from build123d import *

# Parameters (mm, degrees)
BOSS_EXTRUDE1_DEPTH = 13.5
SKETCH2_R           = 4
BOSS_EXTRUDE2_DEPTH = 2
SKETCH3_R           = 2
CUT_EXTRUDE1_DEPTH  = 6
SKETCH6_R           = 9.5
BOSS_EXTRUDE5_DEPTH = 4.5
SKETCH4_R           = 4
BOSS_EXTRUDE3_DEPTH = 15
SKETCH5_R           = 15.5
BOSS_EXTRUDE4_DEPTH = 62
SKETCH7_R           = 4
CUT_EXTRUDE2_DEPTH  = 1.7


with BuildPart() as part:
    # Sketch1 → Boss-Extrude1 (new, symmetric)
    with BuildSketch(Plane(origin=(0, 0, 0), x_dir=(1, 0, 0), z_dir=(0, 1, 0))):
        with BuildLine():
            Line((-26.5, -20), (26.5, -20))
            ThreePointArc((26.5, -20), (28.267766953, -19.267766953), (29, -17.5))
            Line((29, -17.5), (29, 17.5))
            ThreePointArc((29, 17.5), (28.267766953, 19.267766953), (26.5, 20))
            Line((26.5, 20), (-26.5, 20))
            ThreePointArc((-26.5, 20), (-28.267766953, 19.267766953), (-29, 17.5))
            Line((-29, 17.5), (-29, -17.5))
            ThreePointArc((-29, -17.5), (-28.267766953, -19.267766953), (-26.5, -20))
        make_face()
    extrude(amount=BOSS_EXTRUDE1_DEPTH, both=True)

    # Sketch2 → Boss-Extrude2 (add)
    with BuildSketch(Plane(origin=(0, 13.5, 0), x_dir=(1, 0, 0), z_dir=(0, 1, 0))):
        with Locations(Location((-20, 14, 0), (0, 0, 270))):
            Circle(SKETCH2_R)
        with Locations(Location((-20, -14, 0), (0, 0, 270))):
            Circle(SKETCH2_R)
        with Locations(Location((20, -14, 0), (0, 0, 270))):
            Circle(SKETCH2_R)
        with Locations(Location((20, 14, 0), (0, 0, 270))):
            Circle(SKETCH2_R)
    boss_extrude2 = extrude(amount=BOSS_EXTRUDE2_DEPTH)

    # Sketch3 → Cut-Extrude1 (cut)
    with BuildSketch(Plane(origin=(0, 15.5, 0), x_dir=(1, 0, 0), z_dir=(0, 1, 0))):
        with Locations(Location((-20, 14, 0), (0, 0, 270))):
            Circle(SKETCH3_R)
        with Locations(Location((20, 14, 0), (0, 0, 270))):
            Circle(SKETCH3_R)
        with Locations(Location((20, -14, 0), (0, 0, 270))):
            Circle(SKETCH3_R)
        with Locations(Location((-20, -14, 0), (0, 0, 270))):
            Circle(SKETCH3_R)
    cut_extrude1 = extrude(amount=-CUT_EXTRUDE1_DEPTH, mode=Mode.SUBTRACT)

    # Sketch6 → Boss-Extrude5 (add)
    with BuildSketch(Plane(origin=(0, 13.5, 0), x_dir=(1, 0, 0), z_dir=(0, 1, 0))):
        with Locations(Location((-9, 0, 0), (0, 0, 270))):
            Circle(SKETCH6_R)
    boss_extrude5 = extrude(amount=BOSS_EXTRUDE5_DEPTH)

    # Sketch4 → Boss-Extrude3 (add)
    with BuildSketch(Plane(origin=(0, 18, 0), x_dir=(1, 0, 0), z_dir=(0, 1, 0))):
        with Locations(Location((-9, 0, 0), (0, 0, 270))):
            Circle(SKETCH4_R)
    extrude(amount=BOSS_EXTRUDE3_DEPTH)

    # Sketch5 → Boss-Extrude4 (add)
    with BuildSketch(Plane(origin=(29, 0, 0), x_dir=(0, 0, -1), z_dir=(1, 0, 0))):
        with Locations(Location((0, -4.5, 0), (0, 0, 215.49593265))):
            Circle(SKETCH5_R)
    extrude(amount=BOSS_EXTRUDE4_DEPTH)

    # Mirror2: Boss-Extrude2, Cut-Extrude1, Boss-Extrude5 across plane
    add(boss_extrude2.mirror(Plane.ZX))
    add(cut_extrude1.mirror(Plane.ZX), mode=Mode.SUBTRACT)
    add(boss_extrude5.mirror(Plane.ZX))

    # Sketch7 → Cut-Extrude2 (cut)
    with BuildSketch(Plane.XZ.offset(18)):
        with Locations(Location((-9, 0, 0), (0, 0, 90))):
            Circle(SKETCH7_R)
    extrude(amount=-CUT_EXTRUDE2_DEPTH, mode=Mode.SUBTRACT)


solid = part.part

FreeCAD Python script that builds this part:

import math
import FreeCAD as App
import Part
import Sketcher

V = App.Vector
Q = App.Units.Quantity

doc = App.newDocument("Part")
body = doc.addObject("PartDesign::Body", "Body")

# Sketch on XZ plane
sketch1 = body.newObject("Sketcher::SketchObject", "Sketch")
sketch1.AttachmentSupport = (doc.getObject("XZ_Plane"), [""])
sketch1.MapMode = "FlatFace"
sketch1.addGeometry([
    Part.LineSegment(V(-26.5, 20, 0), V(26.5, 20, 0)),  # 0
    Part.ArcOfCircle(Part.Circle(V(26.5, 17.5, 0), V(0, 0, 1), 2.5), math.radians(0), math.radians(90)),  # 1
    Part.LineSegment(V(29, 17.5, 0), V(29, -17.5, 0)),  # 2
    Part.ArcOfCircle(Part.Circle(V(26.5, -17.5, 0), V(0, 0, 1), 2.5), math.radians(-90), math.radians(0)),  # 3
    Part.LineSegment(V(26.5, -20, 0), V(-26.5, -20, 0)),  # 4
    Part.ArcOfCircle(Part.Circle(V(-26.5, -17.5, 0), V(0, 0, 1), 2.5), math.radians(180), math.radians(270)),  # 5
    Part.LineSegment(V(-29, -17.5, 0), V(-29, 17.5, 0)),  # 6
    Part.ArcOfCircle(Part.Circle(V(-26.5, 17.5, 0), V(0, 0, 1), 2.5), math.radians(90), math.radians(180)),  # 7
], False)
sketch1.addConstraint([
    Sketcher.Constraint("Tangent", 0, 2, 1, 2),
    Sketcher.Constraint("Tangent", 1, 1, 2, 1),
    Sketcher.Constraint("Tangent", 2, 2, 3, 2),
    Sketcher.Constraint("Tangent", 3, 1, 4, 1),
    Sketcher.Constraint("Tangent", 4, 2, 5, 2),
    Sketcher.Constraint("Tangent", 5, 1, 6, 1),
    Sketcher.Constraint("Tangent", 6, 2, 7, 2),
    Sketcher.Constraint("Tangent", 7, 1, 0, 1),
    Sketcher.Constraint("Horizontal", 0),
    Sketcher.Constraint("Vertical", 2),
    Sketcher.Constraint("Horizontal", 4),
    Sketcher.Constraint("Vertical", 6),
    Sketcher.Constraint("Equal", 1, 3),
    Sketcher.Constraint("Equal", 3, 5),
    Sketcher.Constraint("Equal", 5, 7),
    Sketcher.Constraint("Symmetric", 1, 3, 5, 3, -1, 1),
    Sketcher.Constraint("Radius", 1, Q("2.5 mm")),
    Sketcher.Constraint("DistanceX", 0, 1, 0, 2, Q("53 mm")),
    Sketcher.Constraint("DistanceY", 2, 2, 2, 1, Q("35 mm")),
])
pad1 = body.newObject("PartDesign::Pad", "Pad")
pad1.Profile = sketch1
pad1.Length = 27
pad1.Midplane = True

# Sketch on XZ plane
sketch2 = body.newObject("Sketcher::SketchObject", "Sketch001")
sketch2.AttachmentSupport = (doc.getObject("XZ_Plane"), [""])
sketch2.MapMode = "FlatFace"
sketch2.AttachmentOffset = App.Placement(V(0, 0, -13.5), App.Rotation())
sketch2.addGeometry([
    Part.Circle(V(-20, -14, 0), V(0, 0, 1), 4),
    Part.Circle(V(-20, 14, 0), V(0, 0, 1), 4),
    Part.Circle(V(20, 14, 0), V(0, 0, 1), 4),
    Part.Circle(V(20, -14, 0), V(0, 0, 1), 4),
], False)
sketch2.addConstraint([
    Sketcher.Constraint("Equal", 0, 1),
    Sketcher.Constraint("Equal", 1, 2),
    Sketcher.Constraint("Equal", 2, 3),
    Sketcher.Constraint("Symmetric", 0, 3, 2, 3, -1, 1),
    Sketcher.Constraint("Symmetric", 1, 3, 3, 3, -1, 1),
    Sketcher.Constraint("Symmetric", 1, 3, 2, 3, -2),
    Sketcher.Constraint("Diameter", 0, Q("8 mm")),
    Sketcher.Constraint("DistanceX", 0, 3, -1, 1, Q("20 mm")),
    Sketcher.Constraint("DistanceY", 0, 3, -1, 1, Q("14 mm")),
])
pad2 = body.newObject("PartDesign::Pad", "Pad001")
pad2.Profile = sketch2
pad2.Length = 2
pad2.Reversed = True

# Sketch on XZ plane
sketch3 = body.newObject("Sketcher::SketchObject", "Sketch002")
sketch3.AttachmentSupport = (doc.getObject("XZ_Plane"), [""])
sketch3.MapMode = "FlatFace"
sketch3.AttachmentOffset = App.Placement(V(0, 0, -15.5), App.Rotation())
sketch3.addGeometry([
    Part.Circle(V(-20, -14, 0), V(0, 0, 1), 2),
    Part.Circle(V(20, -14, 0), V(0, 0, 1), 2),
    Part.Circle(V(20, 14, 0), V(0, 0, 1), 2),
    Part.Circle(V(-20, 14, 0), V(0, 0, 1), 2),
], False)
sketch3.addConstraint([
    Sketcher.Constraint("Equal", 0, 1),
    Sketcher.Constraint("Equal", 1, 2),
    Sketcher.Constraint("Equal", 2, 3),
    Sketcher.Constraint("Symmetric", 0, 3, 2, 3, -1, 1),
    Sketcher.Constraint("Symmetric", 1, 3, 3, 3, -1, 1),
    Sketcher.Constraint("Symmetric", 0, 3, 1, 3, -2),
    Sketcher.Constraint("Diameter", 0, Q("4 mm")),
    Sketcher.Constraint("DistanceX", 0, 3, -1, 1, Q("20 mm")),
    Sketcher.Constraint("DistanceY", 0, 3, -1, 1, Q("14 mm")),
])
pocket1 = body.newObject("PartDesign::Pocket", "Pocket")
pocket1.Profile = sketch3
pocket1.Length = 6
pocket1.Reversed = True

# Sketch on XZ plane
sketch4 = body.newObject("Sketcher::SketchObject", "Sketch003")
sketch4.AttachmentSupport = (doc.getObject("XZ_Plane"), [""])
sketch4.MapMode = "FlatFace"
sketch4.AttachmentOffset = App.Placement(V(0, 0, -13.5), App.Rotation())
sketch4.addGeometry(Part.Circle(V(-9, 0, 0), V(0, 0, 1), 10), False)
sketch4.addConstraint([
    Sketcher.Constraint("PointOnObject", 0, 3, -1),
    Sketcher.Constraint("Diameter", 0, Q("19 mm")),
    Sketcher.Constraint("DistanceX", 0, 3, -1, 1, Q("9 mm")),
])
pad3 = body.newObject("PartDesign::Pad", "Pad002")
pad3.Profile = sketch4
pad3.Length = 4.5
pad3.Reversed = True

# Sketch on XZ plane
sketch5 = body.newObject("Sketcher::SketchObject", "Sketch004")
sketch5.AttachmentSupport = (doc.getObject("XZ_Plane"), [""])
sketch5.MapMode = "FlatFace"
sketch5.AttachmentOffset = App.Placement(V(0, 0, -18), App.Rotation())
sketch5.addGeometry(Part.Circle(V(-9, 0, 0), V(0, 0, 1), 4), False)
sketch5.addConstraint([
    Sketcher.Constraint("PointOnObject", 0, 3, -1),
    Sketcher.Constraint("Diameter", 0, Q("8 mm")),
    Sketcher.Constraint("DistanceX", 0, 3, -1, 1, Q("9 mm")),
])
pad4 = body.newObject("PartDesign::Pad", "Pad003")
pad4.Profile = sketch5
pad4.Length = 15
pad4.Reversed = True

# Sketch on YZ plane
sketch6 = body.newObject("Sketcher::SketchObject", "Sketch005")
sketch6.AttachmentSupport = (doc.getObject("YZ_Plane"), [""])
sketch6.MapMode = "FlatFace"
sketch6.AttachmentOffset = App.Placement(V(0, 0, 29), App.Rotation())
sketch6.addGeometry(Part.Circle(V(-4, 0, 0), V(0, 0, 1), 16), False)
sketch6.addConstraint([
    Sketcher.Constraint("PointOnObject", 0, 3, -1),
    Sketcher.Constraint("Diameter", 0, Q("31 mm")),
    Sketcher.Constraint("DistanceX", 0, 3, -1, 1, Q("4.5 mm")),
])
pad5 = body.newObject("PartDesign::Pad", "Pad004")
pad5.Profile = sketch6
pad5.Length = 62
doc.recompute()

mirrored = body.newObject("PartDesign::Mirrored", "Mirrored")
mirrored.Originals = [pad2, pocket1, pad3]
mirrored.MirrorPlane = (doc.getObject("XZ_Plane"), [""])
body.Tip = mirrored

# Sketch on XZ plane
sketch7 = body.newObject("Sketcher::SketchObject", "Sketch006")
sketch7.AttachmentSupport = (doc.getObject("XZ_Plane"), [""])
sketch7.MapMode = "FlatFace"
sketch7.AttachmentOffset = App.Placement(V(0, 0, 18), App.Rotation())
sketch7.addGeometry(Part.Circle(V(-9, 0, 0), V(0, 0, 1), 4), False)
sketch7.addConstraint([
    Sketcher.Constraint("PointOnObject", 0, 3, -1),
    Sketcher.Constraint("Diameter", 0, Q("8 mm")),
    Sketcher.Constraint("DistanceX", 0, 3, -1, 1, Q("9 mm")),
])
pocket2 = body.newObject("PartDesign::Pocket", "Pocket001")
pocket2.Profile = sketch7
pocket2.Length = 1.7

doc.recompute()
